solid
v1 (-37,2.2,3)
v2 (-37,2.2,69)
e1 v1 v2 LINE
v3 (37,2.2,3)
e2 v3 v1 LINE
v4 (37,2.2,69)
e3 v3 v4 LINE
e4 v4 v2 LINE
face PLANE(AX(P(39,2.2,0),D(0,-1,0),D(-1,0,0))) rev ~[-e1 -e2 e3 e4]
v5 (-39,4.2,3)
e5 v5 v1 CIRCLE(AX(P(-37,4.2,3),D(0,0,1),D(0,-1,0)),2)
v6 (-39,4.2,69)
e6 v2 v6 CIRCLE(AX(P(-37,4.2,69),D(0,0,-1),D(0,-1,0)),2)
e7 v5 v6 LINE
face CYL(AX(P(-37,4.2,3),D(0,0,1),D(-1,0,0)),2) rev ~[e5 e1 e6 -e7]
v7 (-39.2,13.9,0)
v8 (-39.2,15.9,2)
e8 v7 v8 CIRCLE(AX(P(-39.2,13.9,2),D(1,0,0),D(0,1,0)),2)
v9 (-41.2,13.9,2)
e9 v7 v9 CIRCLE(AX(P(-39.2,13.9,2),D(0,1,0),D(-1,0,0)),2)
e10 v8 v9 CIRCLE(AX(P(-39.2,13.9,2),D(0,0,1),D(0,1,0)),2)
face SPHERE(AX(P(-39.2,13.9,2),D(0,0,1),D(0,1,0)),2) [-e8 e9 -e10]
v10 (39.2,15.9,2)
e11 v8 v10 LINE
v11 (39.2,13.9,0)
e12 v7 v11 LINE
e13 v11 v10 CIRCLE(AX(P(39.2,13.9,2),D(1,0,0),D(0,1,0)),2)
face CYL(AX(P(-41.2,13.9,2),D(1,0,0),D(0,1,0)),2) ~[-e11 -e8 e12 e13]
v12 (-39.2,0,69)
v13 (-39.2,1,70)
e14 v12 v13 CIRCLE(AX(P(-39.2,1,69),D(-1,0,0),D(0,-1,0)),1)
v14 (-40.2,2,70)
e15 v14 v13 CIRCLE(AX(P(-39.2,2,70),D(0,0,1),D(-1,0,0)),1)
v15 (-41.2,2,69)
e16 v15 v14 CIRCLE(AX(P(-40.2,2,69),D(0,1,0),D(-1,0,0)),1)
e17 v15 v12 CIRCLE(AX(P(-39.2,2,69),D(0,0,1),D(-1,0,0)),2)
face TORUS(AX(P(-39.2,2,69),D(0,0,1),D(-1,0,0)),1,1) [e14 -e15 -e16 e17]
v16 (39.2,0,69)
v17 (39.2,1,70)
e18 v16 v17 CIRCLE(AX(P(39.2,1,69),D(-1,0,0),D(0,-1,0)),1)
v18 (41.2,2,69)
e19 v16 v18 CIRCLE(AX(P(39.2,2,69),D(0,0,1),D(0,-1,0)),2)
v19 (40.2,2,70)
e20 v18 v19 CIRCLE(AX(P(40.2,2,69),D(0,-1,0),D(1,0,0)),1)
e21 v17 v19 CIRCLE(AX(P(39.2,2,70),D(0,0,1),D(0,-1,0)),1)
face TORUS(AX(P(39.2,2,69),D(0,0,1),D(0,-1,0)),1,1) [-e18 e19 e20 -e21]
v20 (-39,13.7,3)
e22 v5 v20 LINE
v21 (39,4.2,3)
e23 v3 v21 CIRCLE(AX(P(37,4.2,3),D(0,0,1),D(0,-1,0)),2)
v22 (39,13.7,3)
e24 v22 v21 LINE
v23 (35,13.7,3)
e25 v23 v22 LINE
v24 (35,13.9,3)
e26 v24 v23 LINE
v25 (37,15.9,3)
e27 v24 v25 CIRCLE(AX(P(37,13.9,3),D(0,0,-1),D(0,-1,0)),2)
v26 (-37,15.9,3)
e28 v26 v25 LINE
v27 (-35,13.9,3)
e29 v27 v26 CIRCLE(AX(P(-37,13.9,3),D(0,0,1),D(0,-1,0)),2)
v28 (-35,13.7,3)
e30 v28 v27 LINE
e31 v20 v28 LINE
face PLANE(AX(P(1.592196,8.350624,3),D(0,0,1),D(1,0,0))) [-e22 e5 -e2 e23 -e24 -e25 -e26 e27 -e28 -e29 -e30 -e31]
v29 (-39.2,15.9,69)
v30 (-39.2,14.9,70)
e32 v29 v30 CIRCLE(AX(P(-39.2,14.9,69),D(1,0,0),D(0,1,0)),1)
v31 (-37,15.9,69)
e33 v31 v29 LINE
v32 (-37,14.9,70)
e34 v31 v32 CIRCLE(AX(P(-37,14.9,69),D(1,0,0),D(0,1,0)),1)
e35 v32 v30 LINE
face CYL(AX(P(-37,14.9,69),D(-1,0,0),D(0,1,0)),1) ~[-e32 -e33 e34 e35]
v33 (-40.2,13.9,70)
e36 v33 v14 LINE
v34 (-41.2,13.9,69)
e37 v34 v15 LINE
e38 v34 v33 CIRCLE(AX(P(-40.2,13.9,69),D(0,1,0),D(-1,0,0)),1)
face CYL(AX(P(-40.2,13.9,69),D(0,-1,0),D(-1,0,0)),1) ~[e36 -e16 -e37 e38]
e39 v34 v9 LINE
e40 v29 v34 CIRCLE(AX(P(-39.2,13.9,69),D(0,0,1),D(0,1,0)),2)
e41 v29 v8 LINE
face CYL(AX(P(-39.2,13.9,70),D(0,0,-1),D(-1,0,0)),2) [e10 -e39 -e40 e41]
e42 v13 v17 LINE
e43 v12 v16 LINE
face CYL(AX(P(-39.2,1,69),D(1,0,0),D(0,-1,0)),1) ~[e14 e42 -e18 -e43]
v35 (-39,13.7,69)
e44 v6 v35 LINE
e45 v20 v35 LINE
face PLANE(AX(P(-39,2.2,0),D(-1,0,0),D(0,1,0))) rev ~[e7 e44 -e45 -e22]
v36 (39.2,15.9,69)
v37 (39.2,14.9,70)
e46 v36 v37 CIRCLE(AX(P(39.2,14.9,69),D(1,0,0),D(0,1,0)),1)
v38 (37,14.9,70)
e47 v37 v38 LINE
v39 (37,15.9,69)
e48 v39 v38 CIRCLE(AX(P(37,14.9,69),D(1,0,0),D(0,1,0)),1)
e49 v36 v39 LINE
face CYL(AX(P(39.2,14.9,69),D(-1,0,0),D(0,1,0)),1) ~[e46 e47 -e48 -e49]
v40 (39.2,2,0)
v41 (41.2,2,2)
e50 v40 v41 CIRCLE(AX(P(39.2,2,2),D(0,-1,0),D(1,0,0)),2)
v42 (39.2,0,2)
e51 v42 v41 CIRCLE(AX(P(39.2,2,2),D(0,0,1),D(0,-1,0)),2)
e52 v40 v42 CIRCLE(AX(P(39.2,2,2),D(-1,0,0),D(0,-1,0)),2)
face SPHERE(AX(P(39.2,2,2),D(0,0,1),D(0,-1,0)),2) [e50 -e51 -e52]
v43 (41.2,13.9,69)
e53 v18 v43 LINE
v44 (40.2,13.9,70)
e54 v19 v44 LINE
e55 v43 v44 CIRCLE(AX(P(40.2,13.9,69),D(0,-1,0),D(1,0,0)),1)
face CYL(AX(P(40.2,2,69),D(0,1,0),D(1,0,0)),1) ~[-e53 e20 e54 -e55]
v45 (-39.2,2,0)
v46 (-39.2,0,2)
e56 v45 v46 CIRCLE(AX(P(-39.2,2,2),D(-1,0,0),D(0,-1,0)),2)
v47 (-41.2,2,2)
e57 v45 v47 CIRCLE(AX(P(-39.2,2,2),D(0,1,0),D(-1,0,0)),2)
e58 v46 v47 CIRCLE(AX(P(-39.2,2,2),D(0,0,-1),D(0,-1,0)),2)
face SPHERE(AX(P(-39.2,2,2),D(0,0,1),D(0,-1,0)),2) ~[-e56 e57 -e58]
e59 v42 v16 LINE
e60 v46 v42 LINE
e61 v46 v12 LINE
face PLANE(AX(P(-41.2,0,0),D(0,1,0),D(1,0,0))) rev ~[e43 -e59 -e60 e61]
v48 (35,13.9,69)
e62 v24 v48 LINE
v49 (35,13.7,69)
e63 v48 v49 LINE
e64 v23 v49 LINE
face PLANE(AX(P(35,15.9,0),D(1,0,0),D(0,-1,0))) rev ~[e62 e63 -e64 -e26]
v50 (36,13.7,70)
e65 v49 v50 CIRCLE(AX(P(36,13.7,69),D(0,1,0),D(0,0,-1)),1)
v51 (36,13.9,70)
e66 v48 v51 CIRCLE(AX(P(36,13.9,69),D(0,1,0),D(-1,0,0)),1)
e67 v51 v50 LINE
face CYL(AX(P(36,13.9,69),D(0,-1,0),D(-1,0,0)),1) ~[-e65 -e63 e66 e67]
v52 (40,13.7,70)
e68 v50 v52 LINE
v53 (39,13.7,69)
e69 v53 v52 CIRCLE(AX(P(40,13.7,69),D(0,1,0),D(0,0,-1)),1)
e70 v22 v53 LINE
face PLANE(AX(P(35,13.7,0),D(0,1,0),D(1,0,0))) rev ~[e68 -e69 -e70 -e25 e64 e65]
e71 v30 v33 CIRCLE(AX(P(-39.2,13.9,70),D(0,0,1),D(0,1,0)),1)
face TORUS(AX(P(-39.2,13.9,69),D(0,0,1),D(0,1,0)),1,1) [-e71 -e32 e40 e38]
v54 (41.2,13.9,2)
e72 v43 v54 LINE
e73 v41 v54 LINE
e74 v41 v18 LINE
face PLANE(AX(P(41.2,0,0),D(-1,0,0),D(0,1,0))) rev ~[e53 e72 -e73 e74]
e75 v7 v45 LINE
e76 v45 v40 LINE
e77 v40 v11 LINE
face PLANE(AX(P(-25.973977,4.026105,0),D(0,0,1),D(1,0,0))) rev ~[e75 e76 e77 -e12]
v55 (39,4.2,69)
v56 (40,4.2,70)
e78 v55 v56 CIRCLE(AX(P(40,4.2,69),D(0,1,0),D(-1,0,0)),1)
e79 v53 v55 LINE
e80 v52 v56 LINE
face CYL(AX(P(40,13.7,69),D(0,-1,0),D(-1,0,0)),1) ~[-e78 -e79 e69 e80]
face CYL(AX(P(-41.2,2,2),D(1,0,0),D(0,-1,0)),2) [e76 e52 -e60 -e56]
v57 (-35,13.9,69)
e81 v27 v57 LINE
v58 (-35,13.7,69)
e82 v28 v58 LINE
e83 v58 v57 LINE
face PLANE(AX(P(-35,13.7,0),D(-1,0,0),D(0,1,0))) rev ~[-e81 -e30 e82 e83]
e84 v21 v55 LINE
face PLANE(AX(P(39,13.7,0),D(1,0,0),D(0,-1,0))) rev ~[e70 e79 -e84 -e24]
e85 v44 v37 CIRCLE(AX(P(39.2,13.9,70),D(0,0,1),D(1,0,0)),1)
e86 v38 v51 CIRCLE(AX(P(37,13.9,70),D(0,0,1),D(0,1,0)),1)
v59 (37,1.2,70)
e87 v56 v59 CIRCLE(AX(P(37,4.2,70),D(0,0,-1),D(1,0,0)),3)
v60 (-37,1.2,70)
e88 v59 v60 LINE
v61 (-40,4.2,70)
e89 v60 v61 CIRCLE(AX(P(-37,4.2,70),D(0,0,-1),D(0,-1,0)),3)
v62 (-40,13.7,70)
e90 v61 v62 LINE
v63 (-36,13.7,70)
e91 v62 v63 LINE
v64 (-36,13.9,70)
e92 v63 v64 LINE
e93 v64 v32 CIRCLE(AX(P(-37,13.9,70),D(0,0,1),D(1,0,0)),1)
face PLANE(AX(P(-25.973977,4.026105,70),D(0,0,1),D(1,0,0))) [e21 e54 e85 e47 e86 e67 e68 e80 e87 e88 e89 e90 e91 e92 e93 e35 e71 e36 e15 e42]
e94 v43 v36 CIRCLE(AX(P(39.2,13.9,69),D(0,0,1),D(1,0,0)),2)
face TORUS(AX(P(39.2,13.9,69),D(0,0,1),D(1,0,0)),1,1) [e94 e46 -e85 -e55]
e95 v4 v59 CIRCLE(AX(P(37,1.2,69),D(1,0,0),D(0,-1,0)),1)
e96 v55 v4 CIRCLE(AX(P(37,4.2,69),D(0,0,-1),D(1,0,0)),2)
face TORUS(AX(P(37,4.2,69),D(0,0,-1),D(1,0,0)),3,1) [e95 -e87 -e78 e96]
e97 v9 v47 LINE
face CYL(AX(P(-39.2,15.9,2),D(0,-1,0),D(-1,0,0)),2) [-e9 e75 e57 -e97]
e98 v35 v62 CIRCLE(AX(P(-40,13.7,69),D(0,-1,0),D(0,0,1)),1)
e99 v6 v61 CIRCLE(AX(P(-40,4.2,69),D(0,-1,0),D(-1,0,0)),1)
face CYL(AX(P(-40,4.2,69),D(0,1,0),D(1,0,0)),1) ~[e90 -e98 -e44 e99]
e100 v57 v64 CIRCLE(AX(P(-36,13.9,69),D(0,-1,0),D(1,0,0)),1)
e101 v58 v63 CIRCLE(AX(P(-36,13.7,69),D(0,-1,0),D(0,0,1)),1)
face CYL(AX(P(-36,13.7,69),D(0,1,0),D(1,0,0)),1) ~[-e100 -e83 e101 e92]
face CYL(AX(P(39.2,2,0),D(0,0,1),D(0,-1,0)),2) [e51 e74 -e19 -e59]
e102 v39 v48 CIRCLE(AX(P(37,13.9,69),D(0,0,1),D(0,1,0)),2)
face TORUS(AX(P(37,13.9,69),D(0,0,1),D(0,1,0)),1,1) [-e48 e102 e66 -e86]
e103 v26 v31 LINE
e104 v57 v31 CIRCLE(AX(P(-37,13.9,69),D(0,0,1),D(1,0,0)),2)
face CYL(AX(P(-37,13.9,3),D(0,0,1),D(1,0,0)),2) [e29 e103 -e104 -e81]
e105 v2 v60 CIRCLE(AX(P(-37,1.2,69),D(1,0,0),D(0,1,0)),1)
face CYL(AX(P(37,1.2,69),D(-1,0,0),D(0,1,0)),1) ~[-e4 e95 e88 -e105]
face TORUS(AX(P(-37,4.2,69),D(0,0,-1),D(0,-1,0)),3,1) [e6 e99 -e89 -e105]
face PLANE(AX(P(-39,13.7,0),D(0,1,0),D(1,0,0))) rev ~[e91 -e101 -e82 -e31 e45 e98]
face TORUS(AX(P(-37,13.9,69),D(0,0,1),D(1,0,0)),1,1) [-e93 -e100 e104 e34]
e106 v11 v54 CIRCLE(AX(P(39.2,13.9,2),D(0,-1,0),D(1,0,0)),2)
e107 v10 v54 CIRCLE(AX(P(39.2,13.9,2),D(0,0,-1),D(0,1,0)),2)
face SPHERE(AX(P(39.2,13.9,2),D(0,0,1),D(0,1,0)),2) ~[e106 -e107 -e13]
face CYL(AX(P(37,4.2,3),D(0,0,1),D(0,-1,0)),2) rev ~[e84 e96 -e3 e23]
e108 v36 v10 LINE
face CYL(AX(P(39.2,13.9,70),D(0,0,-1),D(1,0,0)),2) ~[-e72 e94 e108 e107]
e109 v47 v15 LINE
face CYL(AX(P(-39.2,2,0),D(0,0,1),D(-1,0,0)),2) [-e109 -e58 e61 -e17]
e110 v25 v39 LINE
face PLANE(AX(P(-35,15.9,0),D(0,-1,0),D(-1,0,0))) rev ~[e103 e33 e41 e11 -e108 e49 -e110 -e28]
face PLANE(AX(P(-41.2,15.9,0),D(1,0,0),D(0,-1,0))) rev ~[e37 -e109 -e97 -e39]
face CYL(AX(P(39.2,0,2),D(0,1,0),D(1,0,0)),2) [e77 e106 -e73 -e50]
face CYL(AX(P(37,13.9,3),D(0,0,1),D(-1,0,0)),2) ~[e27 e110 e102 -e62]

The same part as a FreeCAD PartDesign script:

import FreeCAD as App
import Part
import Sketcher

V = App.Vector
Q = App.Units.Quantity


def edges_at(feature, points):
    """Names of the edges that pass closest to the given points."""
    edges = feature.Shape.Edges
    near = lambda p: min(range(len(edges)), key=lambda i: edges[i].distToShape(Part.Vertex(*p))[0])
    return sorted({f"Edge{near(p) + 1}" for p in points})


def add_polygon(sketch, points):
    """Adds a closed chain of lines whose ends are joined by coincident constraints."""
    first, n = sketch.GeometryCount, len(points)
    for a, b in zip(points, points[1:] + points[:1]):
        sketch.addGeometry(Part.LineSegment(App.Vector(*a, 0), App.Vector(*b, 0)), False)
    for i in range(n):
        sketch.addConstraint(Sketcher.Constraint("Coincident", first + i, 2, first + (i + 1) % n, 1))

doc = App.newDocument("Part")
params = doc.addObject("Spreadsheet::Sheet", "Params")
for row, (alias, value) in enumerate([
    ("sketch1_width", "4 mm"),
    ("sketch1_width2", "78 mm"),
    ("sketch1_width3", "82.4 mm"),
    ("sketch1_height", "15.9 mm"),
    ("sketch1_height2", "2.2 mm"),
    ("pad1_length", "70 mm"),
    ("sketch2_width", "82.4 mm"),
    ("sketch2_height", "15.9 mm"),
    ("pad2_length", "3 mm"),
    ("fillet_radius", "2 mm"),
    ("fillet2_radius", "1 mm"),
], start=1):
    params.set(f"A{row}", alias)
    params.set(f"B{row}", "=" + value)
    params.setAlias(f"B{row}", alias)

body = doc.addObject("PartDesign::Body", "Body")

sketch1 = body.newObject("Sketcher::SketchObject", "Sketch")
sketch1.AttachmentSupport = (doc.getObject("XY_Plane"), [""])
sketch1.MapMode = "FlatFace"
add_polygon(sketch1, [(-41.2, 15.9), (-41.2, 0), (41.2, 0), (41.2, 15.9), (35, 15.9), (35, 13.7), (39, 13.7), (39, 2.2), (-39, 2.2), (-39, 13.7), (-35, 13.7), (-35, 15.9)])
sketch1.addConstraint([
    Sketcher.Constraint("Vertical", 0),
    Sketcher.Constraint("Horizontal", 1),
    Sketcher.Constraint("Vertical", 2),
    Sketcher.Constraint("Horizontal", 3),
    Sketcher.Constraint("Vertical", 4),
    Sketcher.Constraint("Horizontal", 5),
    Sketcher.Constraint("Vertical", 6),
    Sketcher.Constraint("Horizontal", 7),
    Sketcher.Constraint("Vertical", 8),
    Sketcher.Constraint("Horizontal", 9),
    Sketcher.Constraint("Vertical", 10),
    Sketcher.Constraint("Horizontal", 11),
    Sketcher.Constraint("Symmetric", 0, 2, 1, 2, -1, 1),
    Sketcher.Constraint("Symmetric", 5, 2, 8, 2, -2),
    Sketcher.Constraint("Symmetric", 3, 2, 10, 2, -2),
    Sketcher.Constraint("DistanceX", 5, 1, 5, 2, Q("4 mm")),
    Sketcher.Constraint("DistanceX", 7, 2, 7, 1, Q("78 mm")),
    Sketcher.Constraint("DistanceX", 1, 1, 1, 2, Q("82.4 mm")),
    Sketcher.Constraint("DistanceY", 0, 2, 0, 1, Q("15.9 mm")),
    Sketcher.Constraint("DistanceY", 4, 2, 4, 1, Q("2.2 mm")),
    Sketcher.Constraint("DistanceY", 6, 2, 6, 1, Q("11.5 mm")),
])
sketch1.setExpression("Constraints[27]", "Params.sketch1_width")
sketch1.setExpression("Constraints[28]", "Params.sketch1_width2")
sketch1.setExpression("Constraints[29]", "Params.sketch1_width3")
sketch1.setExpression("Constraints[30]", "Params.sketch1_height")
sketch1.setExpression("Constraints[31]", "Params.sketch1_height2")
pad1 = body.newObject("PartDesign::Pad", "Pad")
pad1.Profile = sketch1
pad1.setExpression("Length", "Params.pad1_length")

sketch2 = body.newObject("Sketcher::SketchObject", "Sketch001")
sketch2.AttachmentSupport = (doc.getObject("XY_Plane"), [""])
sketch2.MapMode = "FlatFace"
add_polygon(sketch2, [(41, 0), (41, 16), (-41, 16), (-41, 0)])
sketch2.addConstraint([
    Sketcher.Constraint("Vertical", 0),
    Sketcher.Constraint("Horizontal", 1),
    Sketcher.Constraint("Vertical", 2),
    Sketcher.Constraint("Horizontal", 3),
    Sketcher.Constraint("Symmetric", 2, 2, 3, 2, -1, 1),
    Sketcher.Constraint("DistanceX", 1, 2, 1, 1, Q("82.4 mm")),
    Sketcher.Constraint("DistanceY", 0, 1, 0, 2, Q("15.9 mm")),
])
sketch2.setExpression("Constraints[9]", "Params.sketch2_width")
sketch2.setExpression("Constraints[10]", "Params.sketch2_height")
pad2 = body.newObject("PartDesign::Pad", "Pad001")
pad2.Profile = sketch2
pad2.setExpression("Length", "Params.pad2_length")
doc.recompute()

fillet = body.newObject("PartDesign::Fillet", "Fillet")
fillet.Base = (pad2, edges_at(pad2, [
    (41.2, 0, 35),
    (41.2, 15.9, 35),
    (35, 15.9, 36.5),
    (39, 2.2, 36.5),
    (-35, 15.9, 36.5),
    (-39, 2.2, 36.5),
    (-41.2, 15.9, 35),
    (-41.2, 0, 35),
    (0, 0, 0),
    (0, 15.9, 0),
    (-41.2, 7.95, 0),
    (41.2, 7.95, 0),
]))
fillet.setExpression("Radius", "Params.fillet_radius")
doc.recompute()

fillet2 = body.newObject("PartDesign::Fillet", "Fillet001")
fillet2.Base = (fillet, edges_at(fillet, [(0, 2.2, 70), (0, 0, 70)]))
fillet2.setExpression("Radius", "Params.fillet2_radius")

doc.recompute()
